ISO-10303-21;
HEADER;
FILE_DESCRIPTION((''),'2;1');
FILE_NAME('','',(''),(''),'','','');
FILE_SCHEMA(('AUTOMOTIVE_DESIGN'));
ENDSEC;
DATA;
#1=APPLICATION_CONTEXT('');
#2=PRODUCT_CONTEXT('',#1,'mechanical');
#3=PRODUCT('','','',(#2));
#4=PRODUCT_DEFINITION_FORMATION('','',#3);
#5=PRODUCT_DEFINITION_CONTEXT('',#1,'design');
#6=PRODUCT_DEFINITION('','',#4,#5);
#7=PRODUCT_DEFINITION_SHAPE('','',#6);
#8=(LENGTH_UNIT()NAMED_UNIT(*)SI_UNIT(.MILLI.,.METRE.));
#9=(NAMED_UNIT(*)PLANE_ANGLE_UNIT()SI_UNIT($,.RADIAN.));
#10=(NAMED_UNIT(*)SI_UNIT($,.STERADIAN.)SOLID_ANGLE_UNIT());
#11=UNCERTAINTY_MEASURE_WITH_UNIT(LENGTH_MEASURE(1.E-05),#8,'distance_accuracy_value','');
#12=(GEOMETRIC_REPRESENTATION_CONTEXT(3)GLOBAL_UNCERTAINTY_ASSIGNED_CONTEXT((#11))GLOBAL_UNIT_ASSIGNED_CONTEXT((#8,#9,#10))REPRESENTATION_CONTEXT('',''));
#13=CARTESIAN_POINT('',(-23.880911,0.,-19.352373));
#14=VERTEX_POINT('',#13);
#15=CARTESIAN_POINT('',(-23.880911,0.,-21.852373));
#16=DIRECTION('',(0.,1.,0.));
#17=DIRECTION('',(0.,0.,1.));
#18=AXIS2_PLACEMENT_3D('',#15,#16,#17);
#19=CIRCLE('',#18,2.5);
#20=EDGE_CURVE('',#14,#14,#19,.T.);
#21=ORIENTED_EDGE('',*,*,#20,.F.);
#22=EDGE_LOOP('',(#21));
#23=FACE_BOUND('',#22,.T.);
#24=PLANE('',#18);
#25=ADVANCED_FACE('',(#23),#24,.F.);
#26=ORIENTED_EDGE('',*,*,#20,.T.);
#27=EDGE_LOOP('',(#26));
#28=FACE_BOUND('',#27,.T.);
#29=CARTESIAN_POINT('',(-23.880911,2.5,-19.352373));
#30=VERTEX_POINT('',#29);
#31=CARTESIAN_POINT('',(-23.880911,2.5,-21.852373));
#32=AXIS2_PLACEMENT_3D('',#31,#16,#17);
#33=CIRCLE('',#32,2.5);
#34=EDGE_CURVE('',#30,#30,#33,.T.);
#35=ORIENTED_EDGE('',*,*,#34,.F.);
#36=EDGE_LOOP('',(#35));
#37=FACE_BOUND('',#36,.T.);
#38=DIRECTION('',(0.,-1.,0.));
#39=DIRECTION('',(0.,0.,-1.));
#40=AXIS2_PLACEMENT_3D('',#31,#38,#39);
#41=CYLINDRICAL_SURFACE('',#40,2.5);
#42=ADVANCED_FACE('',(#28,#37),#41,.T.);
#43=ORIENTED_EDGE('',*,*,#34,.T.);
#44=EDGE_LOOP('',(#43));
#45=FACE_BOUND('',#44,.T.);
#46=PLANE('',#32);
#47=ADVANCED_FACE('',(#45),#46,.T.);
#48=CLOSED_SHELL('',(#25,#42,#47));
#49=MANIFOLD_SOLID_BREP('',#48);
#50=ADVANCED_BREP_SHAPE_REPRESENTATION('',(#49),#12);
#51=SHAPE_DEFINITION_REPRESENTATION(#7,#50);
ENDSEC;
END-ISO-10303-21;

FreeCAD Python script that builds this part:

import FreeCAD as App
import Part
import Sketcher

V = App.Vector
Q = App.Units.Quantity

doc = App.newDocument("Part")
body = doc.addObject("PartDesign::Body", "Body")

sketch1 = body.newObject("Sketcher::SketchObject", "Sketch")
sketch1.AttachmentSupport = (doc.getObject("XZ_Plane"), [""])
sketch1.MapMode = "FlatFace"
sketch1.addGeometry(Part.Circle(V(-23.9, -21.9, 0), V(0, 0, 1), 2.5), False)
sketch1.addConstraint([
    Sketcher.Constraint("Diameter", 0, Q("5 mm")),
    Sketcher.Constraint("DistanceX", 0, 3, -1, 1, Q("23.880911 mm")),
    Sketcher.Constraint("DistanceY", 0, 3, -1, 1, Q("21.852373 mm")),
])
pad1 = body.newObject("PartDesign::Pad", "Pad")
pad1.Profile = sketch1
pad1.Length = 2.5
pad1.Reversed = True

doc.recompute()
